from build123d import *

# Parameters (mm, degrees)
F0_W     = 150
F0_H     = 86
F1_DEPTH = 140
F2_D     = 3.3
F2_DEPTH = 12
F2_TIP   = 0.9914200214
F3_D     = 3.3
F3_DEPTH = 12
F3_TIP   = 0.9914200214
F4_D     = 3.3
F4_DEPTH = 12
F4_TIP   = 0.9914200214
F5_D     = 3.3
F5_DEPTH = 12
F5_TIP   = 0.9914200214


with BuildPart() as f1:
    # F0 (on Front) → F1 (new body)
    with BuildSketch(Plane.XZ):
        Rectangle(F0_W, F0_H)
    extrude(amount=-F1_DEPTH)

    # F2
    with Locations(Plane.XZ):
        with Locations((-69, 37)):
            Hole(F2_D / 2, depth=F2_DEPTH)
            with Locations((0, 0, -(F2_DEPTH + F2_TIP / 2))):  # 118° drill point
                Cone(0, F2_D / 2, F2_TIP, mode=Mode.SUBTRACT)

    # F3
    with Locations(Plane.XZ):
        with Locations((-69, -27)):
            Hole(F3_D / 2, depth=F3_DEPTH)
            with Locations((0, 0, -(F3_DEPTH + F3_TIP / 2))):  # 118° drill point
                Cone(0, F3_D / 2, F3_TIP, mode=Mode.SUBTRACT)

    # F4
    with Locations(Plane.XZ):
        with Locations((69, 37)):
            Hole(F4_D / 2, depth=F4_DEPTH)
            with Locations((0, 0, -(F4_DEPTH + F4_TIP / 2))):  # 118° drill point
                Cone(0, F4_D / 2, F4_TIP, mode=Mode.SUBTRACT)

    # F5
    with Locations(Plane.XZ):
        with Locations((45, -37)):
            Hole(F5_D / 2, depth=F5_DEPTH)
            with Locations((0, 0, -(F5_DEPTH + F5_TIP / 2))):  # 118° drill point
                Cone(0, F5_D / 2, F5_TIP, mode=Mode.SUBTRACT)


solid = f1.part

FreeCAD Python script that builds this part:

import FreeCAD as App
import Part
import Sketcher


def add_polygon(sketch, points):
    """Adds a closed chain of lines whose ends are joined by coincident constraints."""
    first, n = sketch.GeometryCount, len(points)
    for a, b in zip(points, points[1:] + points[:1]):
        sketch.addGeometry(Part.LineSegment(App.Vector(*a, 0), App.Vector(*b, 0)), False)
    for i in range(n):
        sketch.addConstraint(Sketcher.Constraint("Coincident", first + i, 2, first + (i + 1) % n, 1))

doc = App.newDocument("Part")
params = doc.addObject("Spreadsheet::Sheet", "Params")
for row, (alias, value) in enumerate([
    ("sketch1_width", "150 mm"),
    ("sketch1_height", "86 mm"),
    ("pad1_length", "140 mm"),
    ("sketch2_diameter", "3.3 mm"),
    ("hole_diameter", "3.3 mm"),
    ("hole_depth", "12 mm"),
    ("sketch3_diameter", "3.3 mm"),
    ("hole2_diameter", "3.3 mm"),
    ("hole2_depth", "12 mm"),
    ("sketch4_diameter", "3.3 mm"),
    ("hole3_diameter", "3.3 mm"),
    ("hole3_depth", "12 mm"),
    ("sketch5_diameter", "3.3 mm"),
    ("hole4_diameter", "3.3 mm"),
    ("hole4_depth", "12 mm"),
], start=1):
    params.set(f"A{row}", alias)
    params.set(f"B{row}", "=" + value)
    params.setAlias(f"B{row}", alias)

body = doc.addObject("PartDesign::Body", "Body")

sketch1 = body.newObject("Sketcher::SketchObject", "Sketch")
sketch1.AttachmentSupport = (doc.getObject("XZ_Plane"), [""])
sketch1.MapMode = "FlatFace"
add_polygon(sketch1, [(-75, 43), (-75, -43), (75, -43), (75, 43)])
sketch1.addConstraint(Sketcher.Constraint("Vertical", 0))
sketch1.addConstraint(Sketcher.Constraint("Horizontal", 1))
sketch1.addConstraint(Sketcher.Constraint("Vertical", 2))
sketch1.addConstraint(Sketcher.Constraint("Horizontal", 3))
sketch1.addConstraint(Sketcher.Constraint("Symmetric", 0, 2, 2, 2, -1, 1))
sketch1.addConstraint(Sketcher.Constraint("DistanceX", 1, 1, 1, 2, 150.0))
sketch1.addConstraint(Sketcher.Constraint("DistanceY", 0, 2, 0, 1, 86.0))
sketch1.setExpression("Constraints[9]", "Params.sketch1_width")
sketch1.setExpression("Constraints[10]", "Params.sketch1_height")
pad1 = body.newObject("PartDesign::Pad", "Pad")
pad1.Profile = sketch1
pad1.setExpression("Length", "Params.pad1_length")
pad1.Reversed = True

sketch2 = body.newObject("Sketcher::SketchObject", "Sketch001")
sketch2.AttachmentSupport = (doc.getObject("XZ_Plane"), [""])
sketch2.MapMode = "FlatFace"
sketch2.addGeometry(Part.Circle(App.Vector(-69, 37, 0), App.Vector(0, 0, 1), 1.65), False)
sketch2.addConstraint(Sketcher.Constraint("Diameter", 0, 3.3))
sketch2.addConstraint(Sketcher.Constraint("DistanceX", 0, 3, -1, 1, 69.0))
sketch2.addConstraint(Sketcher.Constraint("DistanceY", -1, 1, 0, 3, 37.0))
sketch2.setExpression("Constraints[0]", "Params.sketch2_diameter")
doc.recompute()
hole = body.newObject("PartDesign::Hole", "Hole")
hole.Profile = sketch2
hole.ThreadType = "None"
hole.setExpression("Diameter", "Params.hole_diameter")
hole.DepthType = "Dimension"
hole.setExpression("Depth", "Params.hole_depth")
hole.DrillPoint = "Angled"
hole.DrillPointAngle = 118

sketch3 = body.newObject("Sketcher::SketchObject", "Sketch002")
sketch3.AttachmentSupport = (doc.getObject("XZ_Plane"), [""])
sketch3.MapMode = "FlatFace"
sketch3.addGeometry(Part.Circle(App.Vector(-69, -27, 0), App.Vector(0, 0, 1), 1.65), False)
sketch3.addConstraint(Sketcher.Constraint("Diameter", 0, 3.3))
sketch3.addConstraint(Sketcher.Constraint("DistanceX", 0, 3, -1, 1, 69.0))
sketch3.addConstraint(Sketcher.Constraint("DistanceY", 0, 3, -1, 1, 27.0))
sketch3.setExpression("Constraints[0]", "Params.sketch3_diameter")
doc.recompute()
hole2 = body.newObject("PartDesign::Hole", "Hole001")
hole2.Profile = sketch3
hole2.ThreadType = "None"
hole2.setExpression("Diameter", "Params.hole2_diameter")
hole2.DepthType = "Dimension"
hole2.setExpression("Depth", "Params.hole2_depth")
hole2.DrillPoint = "Angled"
hole2.DrillPointAngle = 118

sketch4 = body.newObject("Sketcher::SketchObject", "Sketch003")
sketch4.AttachmentSupport = (doc.getObject("XZ_Plane"), [""])
sketch4.MapMode = "FlatFace"
sketch4.addGeometry(Part.Circle(App.Vector(69, 37, 0), App.Vector(0, 0, 1), 1.65), False)
sketch4.addConstraint(Sketcher.Constraint("Diameter", 0, 3.3))
sketch4.addConstraint(Sketcher.Constraint("DistanceX", -1, 1, 0, 3, 69.0))
sketch4.addConstraint(Sketcher.Constraint("DistanceY", -1, 1, 0, 3, 37.0))
sketch4.setExpression("Constraints[0]", "Params.sketch4_diameter")
doc.recompute()
hole3 = body.newObject("PartDesign::Hole", "Hole002")
hole3.Profile = sketch4
hole3.ThreadType = "None"
hole3.setExpression("Diameter", "Params.hole3_diameter")
hole3.DepthType = "Dimension"
hole3.setExpression("Depth", "Params.hole3_depth")
hole3.DrillPoint = "Angled"
hole3.DrillPointAngle = 118

sketch5 = body.newObject("Sketcher::SketchObject", "Sketch004")
sketch5.AttachmentSupport = (doc.getObject("XZ_Plane"), [""])
sketch5.MapMode = "FlatFace"
sketch5.addGeometry(Part.Circle(App.Vector(45, -37, 0), App.Vector(0, 0, 1), 1.65), False)
sketch5.addConstraint(Sketcher.Constraint("Diameter", 0, 3.3))
sketch5.addConstraint(Sketcher.Constraint("DistanceX", -1, 1, 0, 3, 45.0))
sketch5.addConstraint(Sketcher.Constraint("DistanceY", 0, 3, -1, 1, 37.0))
sketch5.setExpression("Constraints[0]", "Params.sketch5_diameter")
doc.recompute()
hole4 = body.newObject("PartDesign::Hole", "Hole003")
hole4.Profile = sketch5
hole4.ThreadType = "None"
hole4.setExpression("Diameter", "Params.hole4_diameter")
hole4.DepthType = "Dimension"
hole4.setExpression("Depth", "Params.hole4_depth")
hole4.DrillPoint = "Angled"
hole4.DrillPointAngle = 118

doc.recompute()
